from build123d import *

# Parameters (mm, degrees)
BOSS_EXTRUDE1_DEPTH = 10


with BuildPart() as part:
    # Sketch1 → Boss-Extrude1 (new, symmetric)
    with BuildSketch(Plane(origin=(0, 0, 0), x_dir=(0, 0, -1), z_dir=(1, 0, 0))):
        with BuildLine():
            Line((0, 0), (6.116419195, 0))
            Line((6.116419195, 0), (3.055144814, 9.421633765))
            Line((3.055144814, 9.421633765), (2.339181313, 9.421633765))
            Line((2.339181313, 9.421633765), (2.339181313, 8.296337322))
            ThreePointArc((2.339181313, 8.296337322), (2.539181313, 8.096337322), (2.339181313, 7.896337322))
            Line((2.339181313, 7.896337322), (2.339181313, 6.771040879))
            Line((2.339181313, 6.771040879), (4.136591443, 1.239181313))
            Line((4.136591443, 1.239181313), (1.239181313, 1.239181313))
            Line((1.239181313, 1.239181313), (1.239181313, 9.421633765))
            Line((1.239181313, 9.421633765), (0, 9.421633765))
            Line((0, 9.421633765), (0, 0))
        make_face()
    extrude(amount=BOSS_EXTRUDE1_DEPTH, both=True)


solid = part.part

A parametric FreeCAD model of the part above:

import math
import FreeCAD as App
import Part
import Sketcher
from FreeCAD import Vector
Q = App.Units.Quantity

doc = App.newDocument("Part")
body = doc.addObject("PartDesign::Body", "Body")

sketch1 = body.newObject("Sketcher::SketchObject", "Sketch")
sketch1.AttachmentSupport = (doc.getObject("YZ_Plane"), [""])
sketch1.MapMode = "FlatFace"
sketch1.addGeometry(Part.LineSegment(Vector(0, 0, 0), Vector(0, -6.116419, 0)), False)
sketch1.addGeometry(Part.LineSegment(Vector(0, -6.116419, 0), Vector(9.421634, -3.055145, 0)), False)
sketch1.addGeometry(Part.LineSegment(Vector(9.421634, -3.055145, 0), Vector(9.421634, -2.339181, 0)), False)
sketch1.addGeometry(Part.LineSegment(Vector(9.421634, -2.339181, 0), Vector(8.296337, -2.339181, 0)), False)
sketch1.addGeometry(Part.ArcOfCircle(Part.Circle(Vector(8.096337, -2.339181, 0), Vector(0, 0, 1), 0.2), math.radians(180), math.radians(360)), False)
sketch1.addGeometry(Part.LineSegment(Vector(7.896337, -2.339181, 0), Vector(6.771041, -2.339181, 0)), False)
sketch1.addGeometry(Part.LineSegment(Vector(6.771041, -2.339181, 0), Vector(1.239181, -4.136591, 0)), False)
sketch1.addGeometry(Part.LineSegment(Vector(1.239181, -4.136591, 0), Vector(1.239181, -1.239181, 0)), False)
sketch1.addGeometry(Part.LineSegment(Vector(1.239181, -1.239181, 0), Vector(9.421634, -1.239181, 0)), False)
sketch1.addGeometry(Part.LineSegment(Vector(9.421634, -1.239181, 0), Vector(9.421634, 0, 0)), False)
sketch1.addGeometry(Part.LineSegment(Vector(9.421634, 0, 0), Vector(0, 0, 0)), False)
sketch1.addConstraint(Sketcher.Constraint("Coincident", 0, 2, 1, 1))
sketch1.addConstraint(Sketcher.Constraint("Coincident", 1, 2, 2, 1))
sketch1.addConstraint(Sketcher.Constraint("Coincident", 2, 2, 3, 1))
sketch1.addConstraint(Sketcher.Constraint("Coincident", 3, 2, 4, 2))
sketch1.addConstraint(Sketcher.Constraint("Coincident", 4, 1, 5, 1))
sketch1.addConstraint(Sketcher.Constraint("Coincident", 5, 2, 6, 1))
sketch1.addConstraint(Sketcher.Constraint("Coincident", 6, 2, 7, 1))
sketch1.addConstraint(Sketcher.Constraint("Coincident", 7, 2, 8, 1))
sketch1.addConstraint(Sketcher.Constraint("Coincident", 8, 2, 9, 1))
sketch1.addConstraint(Sketcher.Constraint("Coincident", 9, 2, 10, 1))
sketch1.addConstraint(Sketcher.Constraint("Coincident", 10, 2, 0, 1))
sketch1.addConstraint(Sketcher.Constraint("Vertical", 0))
sketch1.addConstraint(Sketcher.Constraint("Vertical", 2))
sketch1.addConstraint(Sketcher.Constraint("Horizontal", 3))
sketch1.addConstraint(Sketcher.Constraint("Horizontal", 5))
sketch1.addConstraint(Sketcher.Constraint("Vertical", 7))
sketch1.addConstraint(Sketcher.Constraint("Horizontal", 8))
sketch1.addConstraint(Sketcher.Constraint("Vertical", 9))
sketch1.addConstraint(Sketcher.Constraint("Horizontal", 10))
sketch1.addConstraint(Sketcher.Constraint("Coincident", 10, 2, -1, 1))
sketch1.addConstraint(Sketcher.Constraint("Parallel", 1, 6))
sketch1.addConstraint(Sketcher.Constraint("Horizontal", 4, 3, 2, 2))
sketch1.addConstraint(Sketcher.Constraint("Horizontal", 3, 2, 4, 1))
sketch1.addConstraint(Sketcher.Constraint("Vertical", 2, 2, 8, 2))
sketch1.addConstraint(Sketcher.Constraint("Equal", 3, 5))
sketch1.addConstraint(Sketcher.Constraint("Radius", 4, Q("0.2 mm")))
sketch1.addConstraint(Sketcher.Constraint("Angle", 1, Q("18 deg")))
sketch1.addConstraint(Sketcher.Constraint("DistanceY", 5, 2, 7, 2, Q("1.1 mm")))
sketch1.addConstraint(Sketcher.Constraint("DistanceY", 0, 2, 0, 1, Q("6.116419 mm")))
sketch1.addConstraint(Sketcher.Constraint("DistanceY", 7, 1, 7, 2, Q("2.89741 mm")))
sketch1.addConstraint(Sketcher.Constraint("DistanceY", 9, 1, 9, 2, Q("1.239181 mm")))
sketch1.addConstraint(Sketcher.Constraint("Distance", 1, Q("9.906492 mm")))
sketch1.addConstraint(Sketcher.Constraint("DistanceX", 3, 2, 3, 1, Q("1.125296 mm")))
pad1 = body.newObject("PartDesign::Pad", "Pad")
pad1.Profile = sketch1
pad1.Length = 20
pad1.Midplane = True

doc.recompute()
